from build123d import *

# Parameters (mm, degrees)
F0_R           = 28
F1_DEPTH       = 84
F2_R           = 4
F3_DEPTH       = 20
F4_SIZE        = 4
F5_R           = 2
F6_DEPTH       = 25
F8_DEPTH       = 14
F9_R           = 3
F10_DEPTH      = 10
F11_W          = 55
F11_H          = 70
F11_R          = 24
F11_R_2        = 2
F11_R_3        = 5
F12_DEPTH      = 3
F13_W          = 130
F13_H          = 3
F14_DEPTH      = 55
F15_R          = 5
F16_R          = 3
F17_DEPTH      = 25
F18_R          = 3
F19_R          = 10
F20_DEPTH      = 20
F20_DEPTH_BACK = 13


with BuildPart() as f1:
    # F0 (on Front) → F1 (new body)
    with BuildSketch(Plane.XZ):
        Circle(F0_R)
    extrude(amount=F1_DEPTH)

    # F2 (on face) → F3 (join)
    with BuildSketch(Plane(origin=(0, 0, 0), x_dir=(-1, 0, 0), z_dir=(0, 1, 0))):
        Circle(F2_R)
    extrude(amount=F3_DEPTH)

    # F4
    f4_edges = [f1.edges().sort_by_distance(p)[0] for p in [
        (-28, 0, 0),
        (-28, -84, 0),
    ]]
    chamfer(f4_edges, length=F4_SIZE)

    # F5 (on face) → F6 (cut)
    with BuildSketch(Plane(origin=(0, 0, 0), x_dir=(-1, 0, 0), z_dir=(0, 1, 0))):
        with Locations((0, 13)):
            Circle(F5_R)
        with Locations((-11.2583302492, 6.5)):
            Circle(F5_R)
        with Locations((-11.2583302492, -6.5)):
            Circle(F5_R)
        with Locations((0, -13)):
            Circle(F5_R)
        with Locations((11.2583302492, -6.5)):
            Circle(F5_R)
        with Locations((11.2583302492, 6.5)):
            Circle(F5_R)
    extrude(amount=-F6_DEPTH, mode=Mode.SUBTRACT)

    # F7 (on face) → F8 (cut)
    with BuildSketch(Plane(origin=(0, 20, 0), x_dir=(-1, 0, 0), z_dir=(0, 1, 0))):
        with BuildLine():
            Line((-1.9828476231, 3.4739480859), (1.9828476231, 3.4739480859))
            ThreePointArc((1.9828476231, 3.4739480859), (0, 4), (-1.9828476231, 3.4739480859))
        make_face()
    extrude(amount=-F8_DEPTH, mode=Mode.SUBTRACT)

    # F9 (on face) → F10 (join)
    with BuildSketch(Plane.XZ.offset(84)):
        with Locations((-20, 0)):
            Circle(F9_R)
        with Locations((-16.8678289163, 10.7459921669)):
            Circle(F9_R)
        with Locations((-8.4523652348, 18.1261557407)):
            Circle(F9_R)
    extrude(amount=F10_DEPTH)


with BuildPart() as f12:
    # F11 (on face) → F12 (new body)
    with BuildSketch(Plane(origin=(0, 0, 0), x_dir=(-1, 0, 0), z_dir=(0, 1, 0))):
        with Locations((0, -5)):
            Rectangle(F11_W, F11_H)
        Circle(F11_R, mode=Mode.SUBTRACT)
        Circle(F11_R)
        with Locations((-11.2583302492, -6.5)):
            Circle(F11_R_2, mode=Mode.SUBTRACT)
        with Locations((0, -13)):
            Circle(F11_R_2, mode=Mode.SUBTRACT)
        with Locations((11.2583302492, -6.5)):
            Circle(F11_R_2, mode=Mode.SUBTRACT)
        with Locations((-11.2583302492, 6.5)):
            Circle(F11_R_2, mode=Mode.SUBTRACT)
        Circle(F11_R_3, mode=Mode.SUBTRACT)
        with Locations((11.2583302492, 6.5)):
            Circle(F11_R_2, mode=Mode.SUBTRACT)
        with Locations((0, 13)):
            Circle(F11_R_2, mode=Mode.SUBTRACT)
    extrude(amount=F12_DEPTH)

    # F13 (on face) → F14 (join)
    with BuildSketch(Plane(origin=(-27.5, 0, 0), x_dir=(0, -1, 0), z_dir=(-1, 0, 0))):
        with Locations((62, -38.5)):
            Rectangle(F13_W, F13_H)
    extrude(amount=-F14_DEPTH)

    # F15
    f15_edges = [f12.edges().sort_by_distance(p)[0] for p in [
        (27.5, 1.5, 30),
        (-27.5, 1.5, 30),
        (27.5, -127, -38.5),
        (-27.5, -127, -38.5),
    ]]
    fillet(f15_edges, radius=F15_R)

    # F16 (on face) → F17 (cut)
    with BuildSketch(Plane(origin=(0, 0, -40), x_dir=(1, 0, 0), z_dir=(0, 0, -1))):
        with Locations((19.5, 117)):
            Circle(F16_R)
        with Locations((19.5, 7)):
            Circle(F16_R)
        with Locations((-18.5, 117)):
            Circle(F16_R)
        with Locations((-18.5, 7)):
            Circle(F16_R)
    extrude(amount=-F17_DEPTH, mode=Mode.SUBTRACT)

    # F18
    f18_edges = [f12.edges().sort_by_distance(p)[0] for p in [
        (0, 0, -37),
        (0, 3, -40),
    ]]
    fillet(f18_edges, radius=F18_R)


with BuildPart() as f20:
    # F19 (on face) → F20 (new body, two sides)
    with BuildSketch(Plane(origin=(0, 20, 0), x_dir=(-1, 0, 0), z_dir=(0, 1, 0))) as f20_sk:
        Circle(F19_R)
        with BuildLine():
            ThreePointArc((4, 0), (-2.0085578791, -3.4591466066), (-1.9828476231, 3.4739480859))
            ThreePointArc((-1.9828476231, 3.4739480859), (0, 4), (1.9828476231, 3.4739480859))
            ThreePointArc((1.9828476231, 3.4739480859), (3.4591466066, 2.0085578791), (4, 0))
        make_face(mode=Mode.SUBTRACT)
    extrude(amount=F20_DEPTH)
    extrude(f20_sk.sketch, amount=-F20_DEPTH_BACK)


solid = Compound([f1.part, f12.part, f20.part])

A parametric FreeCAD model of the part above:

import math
import FreeCAD as App
import Part
import Sketcher


def edges_at(feature, points):
    """Names of the edges that pass closest to the given points."""
    edges = feature.Shape.Edges
    near = lambda p: min(range(len(edges)), key=lambda i: edges[i].distToShape(Part.Vertex(*p))[0])
    return sorted({f"Edge{near(p) + 1}" for p in points})


def add_polygon(sketch, points):
    """Adds a closed chain of lines whose ends are joined by coincident constraints."""
    first, n = sketch.GeometryCount, len(points)
    for a, b in zip(points, points[1:] + points[:1]):
        sketch.addGeometry(Part.LineSegment(App.Vector(*a, 0), App.Vector(*b, 0)), False)
    for i in range(n):
        sketch.addConstraint(Sketcher.Constraint("Coincident", first + i, 2, first + (i + 1) % n, 1))

doc = App.newDocument("Part")
body = doc.addObject("PartDesign::Body", "Body")

sketch1 = doc.addObject("Sketcher::SketchObject", "Sketch")
body.addObject(sketch1)
sketch1.AttachmentSupport = (doc.XZ_Plane, [""])
sketch1.MapMode = "FlatFace"
sketch1.addGeometry(Part.Circle(App.Vector(0, 0, 0), App.Vector(0, 0, 1), 28), False)
sketch1.addConstraint([
    Sketcher.Constraint("Coincident", 0, 3, -1, 1),
    Sketcher.Constraint("Diameter", 0, 56.0),
])
pad1 = doc.addObject("PartDesign::Pad", "Pad")
body.addObject(pad1)
pad1.Profile = sketch1
pad1.Length = 84

sketch2 = doc.addObject("Sketcher::SketchObject", "Sketch001")
body.addObject(sketch2)
sketch2.AttachmentSupport = (doc.XZ_Plane, [""])
sketch2.MapMode = "FlatFace"
sketch2.addGeometry(Part.Circle(App.Vector(0, 0, 0), App.Vector(0, 0, 1), 4), False)
sketch2.addConstraint([
    Sketcher.Constraint("Coincident", 0, 3, -1, 1),
    Sketcher.Constraint("Diameter", 0, 8.0),
])
pad2 = doc.addObject("PartDesign::Pad", "Pad001")
body.addObject(pad2)
pad2.Profile = sketch2
pad2.Length = 20
pad2.Reversed = True
doc.recompute()

chamfer = doc.addObject("PartDesign::Chamfer", "Chamfer")
body.addObject(chamfer)
chamfer.Base = (pad2, edges_at(pad2, [(-28, 0, 0), (-28, -84, 0)]))
chamfer.Size = 4

sketch3 = doc.addObject("Sketcher::SketchObject", "Sketch002")
body.addObject(sketch3)
sketch3.AttachmentSupport = (doc.XZ_Plane, [""])
sketch3.MapMode = "FlatFace"
sketch3.addGeometry([
    Part.Circle(App.Vector(0, 13, 0), App.Vector(0, 0, 1), 2),
    Part.Circle(App.Vector(11.25833, 6.5, 0), App.Vector(0, 0, 1), 2),
    Part.Circle(App.Vector(11.25833, -6.5, 0), App.Vector(0, 0, 1), 2),
    Part.Circle(App.Vector(0, -13, 0), App.Vector(0, 0, 1), 2),
    Part.Circle(App.Vector(-11.25833, -6.5, 0), App.Vector(0, 0, 1), 2),
    Part.Circle(App.Vector(-11.25833, 6.5, 0), App.Vector(0, 0, 1), 2),
], False)
sketch3.addConstraint([
    Sketcher.Constraint("Equal", 0, 1),
    Sketcher.Constraint("Equal", 1, 2),
    Sketcher.Constraint("Equal", 2, 3),
    Sketcher.Constraint("Equal", 3, 4),
    Sketcher.Constraint("Equal", 4, 5),
    Sketcher.Constraint("Symmetric", 0, 3, 3, 3, -1, 1),
    Sketcher.Constraint("Symmetric", 1, 3, 4, 3, -1, 1),
    Sketcher.Constraint("Symmetric", 2, 3, 5, 3, -1, 1),
    Sketcher.Constraint("Symmetric", 2, 3, 4, 3, -2),
    Sketcher.Constraint("PointOnObject", 0, 3, -2),
    Sketcher.Constraint("Diameter", 0, 4.0),
    Sketcher.Constraint("DistanceY", -1, 1, 0, 3, 13.0),
    Sketcher.Constraint("DistanceY", 2, 3, 1, 3, 13.0),
    Sketcher.Constraint("DistanceX", -1, 1, 1, 3, 11.25833),
])
pocket1 = doc.addObject("PartDesign::Pocket", "Pocket")
body.addObject(pocket1)
pocket1.Profile = sketch3
pocket1.Length = 25
pocket1.Reversed = True

sketch4 = doc.addObject("Sketcher::SketchObject", "Sketch003")
body.addObject(sketch4)
sketch4.AttachmentSupport = (doc.XZ_Plane, [""])
sketch4.MapMode = "FlatFace"
sketch4.AttachmentOffset = App.Placement(App.Vector(0, 0, -20), App.Rotation())
sketch4.addGeometry([
    Part.LineSegment(App.Vector(1.982848, 3.473948, 0), App.Vector(-1.982848, 3.473948, 0)),
    Part.ArcOfCircle(Part.Circle(App.Vector(0, 0, 0), App.Vector(0, 0, 1), 4), math.radians(60.283295), math.radians(119.716705)),
], False)
sketch4.addConstraint([
    Sketcher.Constraint("Coincident", 0, 1, 1, 1),
    Sketcher.Constraint("Coincident", 1, 2, 0, 2),
    Sketcher.Constraint("Horizontal", 0),
    Sketcher.Constraint("Coincident", 1, 3, -1, 1),
    Sketcher.Constraint("Radius", 1, 4.0),
    Sketcher.Constraint("DistanceX", 0, 2, 0, 1, 3.965695),
])
pocket2 = doc.addObject("PartDesign::Pocket", "Pocket001")
body.addObject(pocket2)
pocket2.Profile = sketch4
pocket2.Length = 14
pocket2.Reversed = True

sketch5 = doc.addObject("Sketcher::SketchObject", "Sketch004")
body.addObject(sketch5)
sketch5.AttachmentSupport = (doc.XZ_Plane, [""])
sketch5.MapMode = "FlatFace"
sketch5.AttachmentOffset = App.Placement(App.Vector(0, 0, 84), App.Rotation())
sketch5.addGeometry([
    Part.Circle(App.Vector(-20, 0, 0), App.Vector(0, 0, 1), 3),
    Part.Circle(App.Vector(-16.867829, 10.745992, 0), App.Vector(0, 0, 1), 3),
    Part.Circle(App.Vector(-8.452365, 18.126156, 0), App.Vector(0, 0, 1), 3),
], False)
sketch5.addConstraint([
    Sketcher.Constraint("Equal", 0, 1),
    Sketcher.Constraint("Equal", 1, 2),
    Sketcher.Constraint("PointOnObject", 0, 3, -1),
    Sketcher.Constraint("Diameter", 0, 6.0),
    Sketcher.Constraint("DistanceX", 0, 3, -1, 1, 20.0),
    Sketcher.Constraint("DistanceX", 1, 3, -1, 1, 16.867829),
    Sketcher.Constraint("DistanceY", -1, 1, 1, 3, 10.745992),
    Sketcher.Constraint("DistanceX", 2, 3, -1, 1, 8.452365),
    Sketcher.Constraint("DistanceY", -1, 1, 2, 3, 18.126156),
])
pad3 = doc.addObject("PartDesign::Pad", "Pad002")
body.addObject(pad3)
pad3.Profile = sketch5
pad3.Length = 10
body2 = doc.addObject("PartDesign::Body", "Body001")

sketch6 = doc.addObject("Sketcher::SketchObject", "Sketch005")
body2.addObject(sketch6)
sketch6.AttachmentSupport = (doc.getObject("XZ_Plane001"), [""])
sketch6.MapMode = "FlatFace"
add_polygon(sketch6, [(27.5, 30), (27.5, -40), (-27.5, -40), (-27.5, 30)])
sketch6.addGeometry(Part.Circle(App.Vector(11.25833, -6.5, 0), App.Vector(0, 0, 1), 2), False)
sketch6.addGeometry(Part.Circle(App.Vector(0, -13, 0), App.Vector(0, 0, 1), 2), False)
sketch6.addGeometry(Part.Circle(App.Vector(-11.25833, -6.5, 0), App.Vector(0, 0, 1), 2), False)
sketch6.addGeometry(Part.Circle(App.Vector(11.25833, 6.5, 0), App.Vector(0, 0, 1), 2), False)
sketch6.addGeometry(Part.Circle(App.Vector(0, 0, 0), App.Vector(0, 0, 1), 5), False)
sketch6.addGeometry(Part.Circle(App.Vector(-11.25833, 6.5, 0), App.Vector(0, 0, 1), 2), False)
sketch6.addGeometry(Part.Circle(App.Vector(0, 13, 0), App.Vector(0, 0, 1), 2), False)
sketch6.addConstraint([
    Sketcher.Constraint("Vertical", 0),
    Sketcher.Constraint("Horizontal", 1),
    Sketcher.Constraint("Vertical", 2),
    Sketcher.Constraint("Horizontal", 3),
    Sketcher.Constraint("Coincident", 8, 3, -1, 1),
    Sketcher.Constraint("Equal", 4, 5),
    Sketcher.Constraint("Equal", 5, 6),
    Sketcher.Constraint("Equal", 6, 7),
    Sketcher.Constraint("Equal", 7, 9),
    Sketcher.Constraint("Equal", 9, 10),
    Sketcher.Constraint("Symmetric", 6, 3, 7, 3, -1, 1),
    Sketcher.Constraint("Symmetric", 4, 3, 9, 3, -1, 1),
    Sketcher.Constraint("Symmetric", 5, 3, 10, 3, -1, 1),
    Sketcher.Constraint("Symmetric", 4, 3, 6, 3, -2),
    Sketcher.Constraint("PointOnObject", 5, 3, -2),
    Sketcher.Constraint("Diameter", 4, 4.0),
    Sketcher.Constraint("Diameter", 8, 10.0),
    Sketcher.Constraint("DistanceX", 1, 2, 1, 1, 55.0),
    Sketcher.Constraint("DistanceY", 0, 2, 0, 1, 70.0),
    Sketcher.Constraint("DistanceY", 5, 3, -1, 1, 13.0),
    Sketcher.Constraint("DistanceY", 0, 2, -1, 1, 40.0),
    Sketcher.Constraint("DistanceY", 4, 3, 7, 3, 13.0),
    Sketcher.Constraint("DistanceX", -1, 1, 0, 2, 27.5),
    Sketcher.Constraint("DistanceX", -1, 1, 4, 3, 11.25833),
])
pad4 = doc.addObject("PartDesign::Pad", "Pad003")
body2.addObject(pad4)
pad4.Profile = sketch6
pad4.Length = 3
pad4.Reversed = True

sketch7 = doc.addObject("Sketcher::SketchObject", "Sketch006")
body2.addObject(sketch7)
sketch7.AttachmentSupport = (doc.getObject("YZ_Plane001"), [""])
sketch7.MapMode = "FlatFace"
sketch7.AttachmentOffset = App.Placement(App.Vector(0, 0, -27.5), App.Rotation())
add_polygon(sketch7, [(3, -37), (3, -40), (-127, -40), (-127, -37)])
sketch7.addConstraint([
    Sketcher.Constraint("Vertical", 0),
    Sketcher.Constraint("Horizontal", 1),
    Sketcher.Constraint("Vertical", 2),
    Sketcher.Constraint("Horizontal", 3),
    Sketcher.Constraint("DistanceX", 1, 2, 1, 1, 130.0),
    Sketcher.Constraint("DistanceY", 0, 2, 0, 1, 3.0),
    Sketcher.Constraint("DistanceX", -1, 1, 0, 2, 3.0),
    Sketcher.Constraint("DistanceY", 0, 2, -1, 1, 40.0),
])
pad5 = doc.addObject("PartDesign::Pad", "Pad004")
body2.addObject(pad5)
pad5.Profile = sketch7
pad5.Length = 55
doc.recompute()

fillet = doc.addObject("PartDesign::Fillet", "Fillet")
body2.addObject(fillet)
fillet.Base = (pad5, edges_at(pad5, [
    (27.5, 1.5, 30),
    (-27.5, 1.5, 30),
    (27.5, -127, -38.5),
    (-27.5, -127, -38.5),
]))
fillet.Radius = 5

sketch8 = doc.addObject("Sketcher::SketchObject", "Sketch007")
body2.addObject(sketch8)
sketch8.AttachmentSupport = (doc.getObject("XY_Plane001"), [""])
sketch8.MapMode = "FlatFace"
sketch8.AttachmentOffset = App.Placement(App.Vector(0, 0, -40), App.Rotation())
sketch8.addGeometry([
    Part.Circle(App.Vector(19.5, -117, 0), App.Vector(0, 0, 1), 3),
    Part.Circle(App.Vector(19.5, -7, 0), App.Vector(0, 0, 1), 3),
    Part.Circle(App.Vector(-18.5, -117, 0), App.Vector(0, 0, 1), 3),
    Part.Circle(App.Vector(-18.5, -7, 0), App.Vector(0, 0, 1), 3),
], False)
sketch8.addConstraint([
    Sketcher.Constraint("Equal", 0, 1),
    Sketcher.Constraint("Equal", 1, 2),
    Sketcher.Constraint("Equal", 2, 3),
    Sketcher.Constraint("Horizontal", 0, 3, 2, 3),
    Sketcher.Constraint("Horizontal", 1, 3, 3, 3),
    Sketcher.Constraint("Vertical", 0, 3, 1, 3),
    Sketcher.Constraint("Vertical", 2, 3, 3, 3),
    Sketcher.Constraint("Diameter", 0, 6.0),
    Sketcher.Constraint("DistanceY", 0, 3, -1, 1, 117.0),
    Sketcher.Constraint("DistanceY", 1, 3, -1, 1, 7.0),
    Sketcher.Constraint("DistanceX", 2, 3, 0, 3, 38.0),
    Sketcher.Constraint("DistanceX", -1, 1, 0, 3, 19.5),
])
pocket3 = doc.addObject("PartDesign::Pocket", "Pocket002")
body2.addObject(pocket3)
pocket3.Profile = sketch8
pocket3.Length = 25
pocket3.Reversed = True
doc.recompute()

fillet2 = doc.addObject("PartDesign::Fillet", "Fillet001")
body2.addObject(fillet2)
fillet2.Base = (pocket3, edges_at(pocket3, [(0, 0, -37), (0, 3, -40)]))
fillet2.Radius = 3
body3 = doc.addObject("PartDesign::Body", "Body002")

sketch9 = doc.addObject("Sketcher::SketchObject", "Sketch008")
body3.addObject(sketch9)
sketch9.AttachmentSupport = (doc.getObject("XZ_Plane002"), [""])
sketch9.MapMode = "FlatFace"
sketch9.AttachmentOffset = App.Placement(App.Vector(0, 0, -20), App.Rotation())
sketch9.addGeometry([
    Part.Circle(App.Vector(0, 0, 0), App.Vector(0, 0, 1), 10),
    Part.ArcOfCircle(Part.Circle(App.Vector(0, 0, 0), App.Vector(0, 0, 1), 4), math.radians(119.716705), math.radians(180)),
    Part.ArcOfCircle(Part.Circle(App.Vector(0, 0, 0), App.Vector(0, 0, 1), 4), math.radians(180), math.radians(420.283295)),
    Part.ArcOfCircle(Part.Circle(App.Vector(0, 0, 0), App.Vector(0, 0, 1), 4), math.radians(60.283295), math.radians(119.716705)),
], False)
sketch9.addConstraint([
    Sketcher.Constraint("Tangent", 1, 2, 2, 1),
    Sketcher.Constraint("Tangent", 2, 2, 3, 1),
    Sketcher.Constraint("Tangent", 3, 2, 1, 1),
    Sketcher.Constraint("Coincident", 0, 3, -1, 1),
    Sketcher.Constraint("Coincident", 1, 3, -1, 1),
    Sketcher.Constraint("PointOnObject", 1, 2, -1),
    Sketcher.Constraint("Horizontal", 2, 2, 3, 2),
    Sketcher.Constraint("Diameter", 0, 20.0),
    Sketcher.Constraint("Radius", 1, 4.0),
    Sketcher.Constraint("DistanceY", -1, 1, 2, 2, 3.473948),
])
pad6 = doc.addObject("PartDesign::Pad", "Pad005")
body3.addObject(pad6)
pad6.Profile = sketch9
pad6.Type = "TwoLengths"
pad6.Length = 20
pad6.Length2 = 13
pad6.Reversed = True

doc.recompute()
